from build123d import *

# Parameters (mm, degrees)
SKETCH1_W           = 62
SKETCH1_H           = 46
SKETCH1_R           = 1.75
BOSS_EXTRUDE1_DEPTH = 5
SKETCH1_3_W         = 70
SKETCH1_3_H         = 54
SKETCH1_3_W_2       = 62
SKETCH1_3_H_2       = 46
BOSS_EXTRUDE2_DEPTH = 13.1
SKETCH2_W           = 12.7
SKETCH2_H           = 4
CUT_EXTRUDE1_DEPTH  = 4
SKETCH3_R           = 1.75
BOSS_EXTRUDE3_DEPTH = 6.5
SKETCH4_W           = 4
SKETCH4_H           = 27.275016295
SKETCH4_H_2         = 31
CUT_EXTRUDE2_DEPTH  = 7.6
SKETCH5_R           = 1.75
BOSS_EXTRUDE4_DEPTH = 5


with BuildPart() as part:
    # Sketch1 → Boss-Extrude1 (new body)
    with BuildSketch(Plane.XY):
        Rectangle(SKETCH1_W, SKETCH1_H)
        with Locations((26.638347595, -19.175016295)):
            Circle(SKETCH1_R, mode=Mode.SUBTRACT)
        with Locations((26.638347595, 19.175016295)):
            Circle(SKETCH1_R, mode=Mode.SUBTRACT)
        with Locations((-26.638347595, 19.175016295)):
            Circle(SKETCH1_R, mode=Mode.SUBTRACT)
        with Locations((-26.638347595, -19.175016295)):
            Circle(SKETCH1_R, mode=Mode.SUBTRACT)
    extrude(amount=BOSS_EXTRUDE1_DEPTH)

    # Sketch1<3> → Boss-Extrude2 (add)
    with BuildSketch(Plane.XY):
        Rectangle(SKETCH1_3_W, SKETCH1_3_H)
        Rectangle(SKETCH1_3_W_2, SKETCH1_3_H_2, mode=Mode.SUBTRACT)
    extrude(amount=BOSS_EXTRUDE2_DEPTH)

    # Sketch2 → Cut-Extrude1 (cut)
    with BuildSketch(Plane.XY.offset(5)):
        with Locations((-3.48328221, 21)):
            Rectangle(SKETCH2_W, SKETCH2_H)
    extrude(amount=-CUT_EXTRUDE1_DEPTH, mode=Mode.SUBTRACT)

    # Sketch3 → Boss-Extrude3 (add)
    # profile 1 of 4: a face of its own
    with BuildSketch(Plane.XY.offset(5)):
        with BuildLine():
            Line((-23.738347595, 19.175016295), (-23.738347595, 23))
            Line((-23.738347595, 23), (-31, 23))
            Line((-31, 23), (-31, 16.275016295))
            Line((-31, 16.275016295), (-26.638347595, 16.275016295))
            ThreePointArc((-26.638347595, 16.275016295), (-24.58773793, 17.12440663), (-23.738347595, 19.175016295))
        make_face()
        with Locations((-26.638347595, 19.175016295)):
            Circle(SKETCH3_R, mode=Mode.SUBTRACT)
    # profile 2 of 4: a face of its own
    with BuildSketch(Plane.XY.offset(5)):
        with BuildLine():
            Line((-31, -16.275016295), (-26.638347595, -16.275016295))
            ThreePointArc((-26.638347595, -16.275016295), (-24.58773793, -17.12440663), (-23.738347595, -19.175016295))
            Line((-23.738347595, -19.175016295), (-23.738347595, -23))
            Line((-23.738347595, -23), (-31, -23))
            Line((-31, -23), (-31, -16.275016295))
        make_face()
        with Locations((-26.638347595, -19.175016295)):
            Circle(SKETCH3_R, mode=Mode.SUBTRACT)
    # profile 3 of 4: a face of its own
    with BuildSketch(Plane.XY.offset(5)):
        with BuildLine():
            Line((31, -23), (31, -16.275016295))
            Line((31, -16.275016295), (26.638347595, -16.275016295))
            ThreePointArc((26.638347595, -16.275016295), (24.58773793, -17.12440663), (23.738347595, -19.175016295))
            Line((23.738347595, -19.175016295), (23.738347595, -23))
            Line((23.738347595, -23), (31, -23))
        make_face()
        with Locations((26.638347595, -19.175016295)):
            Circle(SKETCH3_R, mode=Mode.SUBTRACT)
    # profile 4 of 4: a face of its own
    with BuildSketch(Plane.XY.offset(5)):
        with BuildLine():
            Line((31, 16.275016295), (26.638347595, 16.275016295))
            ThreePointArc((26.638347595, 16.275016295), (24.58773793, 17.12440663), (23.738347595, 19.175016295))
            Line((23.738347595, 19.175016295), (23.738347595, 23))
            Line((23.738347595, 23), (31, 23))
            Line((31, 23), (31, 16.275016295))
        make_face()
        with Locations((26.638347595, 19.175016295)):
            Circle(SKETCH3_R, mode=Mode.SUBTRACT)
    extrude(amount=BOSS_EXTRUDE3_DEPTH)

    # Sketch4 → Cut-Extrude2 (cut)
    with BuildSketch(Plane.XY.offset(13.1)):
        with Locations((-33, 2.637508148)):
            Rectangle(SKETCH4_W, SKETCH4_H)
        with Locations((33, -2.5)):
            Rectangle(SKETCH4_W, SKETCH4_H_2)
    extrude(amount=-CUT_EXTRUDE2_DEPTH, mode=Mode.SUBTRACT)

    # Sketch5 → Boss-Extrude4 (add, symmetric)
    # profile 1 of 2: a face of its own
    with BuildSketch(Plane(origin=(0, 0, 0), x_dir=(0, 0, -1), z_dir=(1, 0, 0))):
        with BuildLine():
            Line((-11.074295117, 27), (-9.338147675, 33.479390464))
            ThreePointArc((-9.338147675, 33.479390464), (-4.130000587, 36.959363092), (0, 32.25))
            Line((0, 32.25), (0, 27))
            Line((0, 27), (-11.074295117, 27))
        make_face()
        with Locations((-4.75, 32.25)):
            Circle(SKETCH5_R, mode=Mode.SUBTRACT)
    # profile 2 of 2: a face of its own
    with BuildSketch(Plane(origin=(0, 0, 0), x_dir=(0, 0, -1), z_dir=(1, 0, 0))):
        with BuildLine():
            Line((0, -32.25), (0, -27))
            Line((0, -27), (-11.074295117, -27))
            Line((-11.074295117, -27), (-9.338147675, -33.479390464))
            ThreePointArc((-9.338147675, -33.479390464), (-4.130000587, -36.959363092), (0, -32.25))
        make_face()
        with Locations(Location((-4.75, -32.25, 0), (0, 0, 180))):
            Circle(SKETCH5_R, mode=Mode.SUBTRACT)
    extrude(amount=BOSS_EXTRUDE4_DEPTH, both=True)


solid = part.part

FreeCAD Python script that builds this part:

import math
import FreeCAD as App
import Part
import Sketcher

V = App.Vector
Q = App.Units.Quantity


def add_polygon(sketch, points):
    """Adds a closed chain of lines whose ends are joined by coincident constraints."""
    first, n = sketch.GeometryCount, len(points)
    for a, b in zip(points, points[1:] + points[:1]):
        sketch.addGeometry(Part.LineSegment(App.Vector(*a, 0), App.Vector(*b, 0)), False)
    for i in range(n):
        sketch.addConstraint(Sketcher.Constraint("Coincident", first + i, 2, first + (i + 1) % n, 1))

doc = App.newDocument("Part")
body = doc.addObject("PartDesign::Body", "Body")

sketch1 = body.newObject("Sketcher::SketchObject", "Sketch")
sketch1.AttachmentSupport = (doc.getObject("XY_Plane"), [""])
sketch1.MapMode = "FlatFace"
add_polygon(sketch1, [(-31, 23), (-31, -23), (31, -23), (31, 23)])
sketch1.addGeometry(Part.Circle(V(-26.638348, -19.175016, 0), V(0, 0, 1), 1.75), False)
sketch1.addGeometry(Part.Circle(V(26.638348, -19.175016, 0), V(0, 0, 1), 1.75), False)
sketch1.addGeometry(Part.Circle(V(-26.638348, 19.175016, 0), V(0, 0, 1), 1.75), False)
sketch1.addGeometry(Part.Circle(V(26.638348, 19.175016, 0), V(0, 0, 1), 1.75), False)
sketch1.addConstraint(Sketcher.Constraint("Vertical", 0))
sketch1.addConstraint(Sketcher.Constraint("Horizontal", 1))
sketch1.addConstraint(Sketcher.Constraint("Vertical", 2))
sketch1.addConstraint(Sketcher.Constraint("Horizontal", 3))
sketch1.addConstraint(Sketcher.Constraint("Equal", 4, 5))
sketch1.addConstraint(Sketcher.Constraint("Equal", 5, 6))
sketch1.addConstraint(Sketcher.Constraint("Equal", 6, 7))
sketch1.addConstraint(Sketcher.Constraint("Symmetric", 5, 3, 6, 3, -1, 1))
sketch1.addConstraint(Sketcher.Constraint("Symmetric", 4, 3, 7, 3, -1, 1))
sketch1.addConstraint(Sketcher.Constraint("Symmetric", 0, 2, 2, 2, -1, 1))
sketch1.addConstraint(Sketcher.Constraint("Symmetric", 4, 3, 5, 3, -2))
sketch1.addConstraint(Sketcher.Constraint("Diameter", 4, 3.5))
sketch1.addConstraint(Sketcher.Constraint("DistanceX", 1, 1, 1, 2, 62.0))
sketch1.addConstraint(Sketcher.Constraint("DistanceY", 0, 2, 0, 1, 46.0))
sketch1.addConstraint(Sketcher.Constraint("DistanceX", 4, 3, -1, 1, 26.638348))
sketch1.addConstraint(Sketcher.Constraint("DistanceY", 4, 3, -1, 1, 19.175016))
pad1 = body.newObject("PartDesign::Pad", "Pad")
pad1.Profile = sketch1
pad1.Length = 5

sketch2 = body.newObject("Sketcher::SketchObject", "Sketch001")
sketch2.AttachmentSupport = (doc.getObject("XY_Plane"), [""])
sketch2.MapMode = "FlatFace"
add_polygon(sketch2, [(-35, 27), (-35, -27), (35, -27), (35, 27)])
add_polygon(sketch2, [(31, -23), (-31, -23), (-31, 23), (31, 23)])
sketch2.addConstraint(Sketcher.Constraint("Vertical", 0))
sketch2.addConstraint(Sketcher.Constraint("Horizontal", 1))
sketch2.addConstraint(Sketcher.Constraint("Vertical", 2))
sketch2.addConstraint(Sketcher.Constraint("Horizontal", 3))
sketch2.addConstraint(Sketcher.Constraint("Horizontal", 4))
sketch2.addConstraint(Sketcher.Constraint("Vertical", 5))
sketch2.addConstraint(Sketcher.Constraint("Horizontal", 6))
sketch2.addConstraint(Sketcher.Constraint("Vertical", 7))
sketch2.addConstraint(Sketcher.Constraint("Symmetric", 0, 2, 2, 2, -1, 1))
sketch2.addConstraint(Sketcher.Constraint("Symmetric", 4, 2, 6, 2, -1, 1))
sketch2.addConstraint(Sketcher.Constraint("DistanceX", 1, 1, 1, 2, 70.0))
sketch2.addConstraint(Sketcher.Constraint("DistanceX", 4, 2, 4, 1, 62.0))
sketch2.addConstraint(Sketcher.Constraint("DistanceY", 0, 2, 0, 1, 54.0))
sketch2.addConstraint(Sketcher.Constraint("DistanceY", 5, 1, 5, 2, 46.0))
pad2 = body.newObject("PartDesign::Pad", "Pad001")
pad2.Profile = sketch2
pad2.Length = 13.1

sketch3 = body.newObject("Sketcher::SketchObject", "Sketch002")
sketch3.AttachmentSupport = (doc.getObject("XY_Plane"), [""])
sketch3.MapMode = "FlatFace"
sketch3.AttachmentOffset = App.Placement(V(0, 0, 5), App.Rotation())
add_polygon(sketch3, [(-9.833282, 23), (-9.833282, 19), (2.866718, 19), (2.866718, 23)])
sketch3.addConstraint(Sketcher.Constraint("Vertical", 0))
sketch3.addConstraint(Sketcher.Constraint("Horizontal", 1))
sketch3.addConstraint(Sketcher.Constraint("Vertical", 2))
sketch3.addConstraint(Sketcher.Constraint("Horizontal", 3))
sketch3.addConstraint(Sketcher.Constraint("DistanceY", 0, 2, 0, 1, 4.0))
sketch3.addConstraint(Sketcher.Constraint("DistanceX", 1, 1, 1, 2, 12.7))
sketch3.addConstraint(Sketcher.Constraint("DistanceY", -1, 1, 0, 2, 19.0))
sketch3.addConstraint(Sketcher.Constraint("DistanceX", 0, 2, -1, 1, 9.833282))
pocket1 = body.newObject("PartDesign::Pocket", "Pocket")
pocket1.Profile = sketch3
pocket1.Length = 4

sketch4 = body.newObject("Sketcher::SketchObject", "Sketch003")
sketch4.AttachmentSupport = (doc.getObject("XY_Plane"), [""])
sketch4.MapMode = "FlatFace"
sketch4.AttachmentOffset = App.Placement(V(0, 0, 5), App.Rotation())
sketch4.addGeometry(Part.LineSegment(V(-23.738348, 19.175016, 0), V(-23.738348, 23, 0)), False)
sketch4.addGeometry(Part.LineSegment(V(-23.738348, 23, 0), V(-31, 23, 0)), False)
sketch4.addGeometry(Part.LineSegment(V(-31, 23, 0), V(-31, 16.275016, 0)), False)
sketch4.addGeometry(Part.LineSegment(V(-31, 16.275016, 0), V(-26.638348, 16.275016, 0)), False)
sketch4.addGeometry(Part.ArcOfCircle(Part.Circle(V(-26.638348, 19.175016, 0), V(0, 0, 1), 2.9), math.radians(-90), math.radians(0)), False)
sketch4.addGeometry(Part.Circle(V(-26.638348, 19.175016, 0), V(0, 0, 1), 1.75), False)
sketch4.addGeometry(Part.LineSegment(V(-26.638348, -16.275016, 0), V(-31, -16.275016, 0)), False)
sketch4.addGeometry(Part.LineSegment(V(-31, -16.275016, 0), V(-31, -23, 0)), False)
sketch4.addGeometry(Part.LineSegment(V(-31, -23, 0), V(-23.738348, -23, 0)), False)
sketch4.addGeometry(Part.LineSegment(V(-23.738348, -23, 0), V(-23.738348, -19.175016, 0)), False)
sketch4.addGeometry(Part.ArcOfCircle(Part.Circle(V(-26.638348, -19.175016, 0), V(0, 0, 1), 2.9), math.radians(0), math.radians(90)), False)
sketch4.addGeometry(Part.Circle(V(-26.638348, -19.175016, 0), V(0, 0, 1), 1.75), False)
sketch4.addGeometry(Part.LineSegment(V(31, -23, 0), V(31, -16.275016, 0)), False)
sketch4.addGeometry(Part.LineSegment(V(31, -16.275016, 0), V(26.638348, -16.275016, 0)), False)
sketch4.addGeometry(Part.ArcOfCircle(Part.Circle(V(26.638348, -19.175016, 0), V(0, 0, 1), 2.9), math.radians(90), math.radians(180)), False)
sketch4.addGeometry(Part.LineSegment(V(23.738348, -19.175016, 0), V(23.738348, -23, 0)), False)
sketch4.addGeometry(Part.LineSegment(V(23.738348, -23, 0), V(31, -23, 0)), False)
sketch4.addGeometry(Part.Circle(V(26.638348, -19.175016, 0), V(0, 0, 1), 1.75), False)
sketch4.addGeometry(Part.LineSegment(V(26.638348, 16.275016, 0), V(31, 16.275016, 0)), False)
sketch4.addGeometry(Part.LineSegment(V(31, 16.275016, 0), V(31, 23, 0)), False)
sketch4.addGeometry(Part.LineSegment(V(31, 23, 0), V(23.738348, 23, 0)), False)
sketch4.addGeometry(Part.LineSegment(V(23.738348, 23, 0), V(23.738348, 19.175016, 0)), False)
sketch4.addGeometry(Part.ArcOfCircle(Part.Circle(V(26.638348, 19.175016, 0), V(0, 0, 1), 2.9), math.radians(-180), math.radians(-90)), False)
sketch4.addGeometry(Part.Circle(V(26.638348, 19.175016, 0), V(0, 0, 1), 1.75), False)
sketch4.addConstraint(Sketcher.Constraint("Coincident", 0, 2, 1, 1))
sketch4.addConstraint(Sketcher.Constraint("Coincident", 1, 2, 2, 1))
sketch4.addConstraint(Sketcher.Constraint("Coincident", 2, 2, 3, 1))
sketch4.addConstraint(Sketcher.Constraint("Tangent", 3, 2, 4, 1))
sketch4.addConstraint(Sketcher.Constraint("Tangent", 4, 2, 0, 1))
sketch4.addConstraint(Sketcher.Constraint("Coincident", 6, 2, 7, 1))
sketch4.addConstraint(Sketcher.Constraint("Coincident", 7, 2, 8, 1))
sketch4.addConstraint(Sketcher.Constraint("Coincident", 8, 2, 9, 1))
sketch4.addConstraint(Sketcher.Constraint("Tangent", 9, 2, 10, 1))
sketch4.addConstraint(Sketcher.Constraint("Tangent", 10, 2, 6, 1))
sketch4.addConstraint(Sketcher.Constraint("Coincident", 12, 2, 13, 1))
sketch4.addConstraint(Sketcher.Constraint("Tangent", 13, 2, 14, 1))
sketch4.addConstraint(Sketcher.Constraint("Tangent", 14, 2, 15, 1))
sketch4.addConstraint(Sketcher.Constraint("Coincident", 15, 2, 16, 1))
sketch4.addConstraint(Sketcher.Constraint("Coincident", 16, 2, 12, 1))
sketch4.addConstraint(Sketcher.Constraint("Coincident", 18, 2, 19, 1))
sketch4.addConstraint(Sketcher.Constraint("Coincident", 19, 2, 20, 1))
sketch4.addConstraint(Sketcher.Constraint("Coincident", 20, 2, 21, 1))
sketch4.addConstraint(Sketcher.Constraint("Tangent", 21, 2, 22, 1))
sketch4.addConstraint(Sketcher.Constraint("Tangent", 22, 2, 18, 1))
sketch4.addConstraint(Sketcher.Constraint("Vertical", 0))
sketch4.addConstraint(Sketcher.Constraint("Horizontal", 1))
sketch4.addConstraint(Sketcher.Constraint("Vertical", 2))
sketch4.addConstraint(Sketcher.Constraint("Horizontal", 3))
sketch4.addConstraint(Sketcher.Constraint("Horizontal", 6))
sketch4.addConstraint(Sketcher.Constraint("Vertical", 7))
sketch4.addConstraint(Sketcher.Constraint("Horizontal", 8))
sketch4.addConstraint(Sketcher.Constraint("Vertical", 9))
sketch4.addConstraint(Sketcher.Constraint("Vertical", 12))
sketch4.addConstraint(Sketcher.Constraint("Horizontal", 13))
sketch4.addConstraint(Sketcher.Constraint("Vertical", 15))
sketch4.addConstraint(Sketcher.Constraint("Horizontal", 16))
sketch4.addConstraint(Sketcher.Constraint("Horizontal", 18))
sketch4.addConstraint(Sketcher.Constraint("Vertical", 19))
sketch4.addConstraint(Sketcher.Constraint("Horizontal", 20))
sketch4.addConstraint(Sketcher.Constraint("Vertical", 21))
sketch4.addConstraint(Sketcher.Constraint("Coincident", 5, 3, 4, 3))
sketch4.addConstraint(Sketcher.Constraint("Coincident", 11, 3, 10, 3))
sketch4.addConstraint(Sketcher.Constraint("Coincident", 17, 3, 14, 3))
sketch4.addConstraint(Sketcher.Constraint("Coincident", 23, 3, 22, 3))
sketch4.addConstraint(Sketcher.Constraint("Equal", 4, 10))
sketch4.addConstraint(Sketcher.Constraint("Equal", 5, 11))
sketch4.addConstraint(Sketcher.Constraint("Equal", 10, 14))
sketch4.addConstraint(Sketcher.Constraint("Equal", 11, 17))
sketch4.addConstraint(Sketcher.Constraint("Equal", 14, 22))
sketch4.addConstraint(Sketcher.Constraint("Equal", 17, 23))
sketch4.addConstraint(Sketcher.Constraint("Symmetric", 4, 3, 14, 3, -1, 1))
sketch4.addConstraint(Sketcher.Constraint("Symmetric", 10, 3, 22, 3, -1, 1))
sketch4.addConstraint(Sketcher.Constraint("Symmetric", 1, 2, 16, 2, -1, 1))
sketch4.addConstraint(Sketcher.Constraint("Symmetric", 7, 2, 19, 2, -1, 1))
sketch4.addConstraint(Sketcher.Constraint("Symmetric", 10, 3, 14, 3, -2))
sketch4.addConstraint(Sketcher.Constraint("Symmetric", 7, 2, 16, 2, -2))
sketch4.addConstraint(Sketcher.Constraint("Diameter", 5, 3.5))
sketch4.addConstraint(Sketcher.Constraint("Radius", 4, 2.9))
sketch4.addConstraint(Sketcher.Constraint("DistanceY", -1, 1, 0, 2, 23.0))
sketch4.addConstraint(Sketcher.Constraint("DistanceX", 1, 2, -1, 1, 31.0))
sketch4.addConstraint(Sketcher.Constraint("DistanceX", 1, 2, 1, 1, 7.261652))
sketch4.addConstraint(Sketcher.Constraint("DistanceY", 0, 1, 0, 2, 3.824984))
pad3 = body.newObject("PartDesign::Pad", "Pad002")
pad3.Profile = sketch4
pad3.Length = 6.5

sketch5 = body.newObject("Sketcher::SketchObject", "Sketch004")
sketch5.AttachmentSupport = (doc.getObject("XY_Plane"), [""])
sketch5.MapMode = "FlatFace"
sketch5.AttachmentOffset = App.Placement(V(0, 0, 13.1), App.Rotation())
add_polygon(sketch5, [(-35, 16.275016), (-35, -11), (-31, -11), (-31, 16.275016)])
add_polygon(sketch5, [(31, 13), (31, -18), (35, -18), (35, 13)])
sketch5.addConstraint(Sketcher.Constraint("Vertical", 0))
sketch5.addConstraint(Sketcher.Constraint("Horizontal", 1))
sketch5.addConstraint(Sketcher.Constraint("Vertical", 2))
sketch5.addConstraint(Sketcher.Constraint("Horizontal", 3))
sketch5.addConstraint(Sketcher.Constraint("Vertical", 4))
sketch5.addConstraint(Sketcher.Constraint("Horizontal", 5))
sketch5.addConstraint(Sketcher.Constraint("Vertical", 6))
sketch5.addConstraint(Sketcher.Constraint("Horizontal", 7))
sketch5.addConstraint(Sketcher.Constraint("Equal", 3, 5))
sketch5.addConstraint(Sketcher.Constraint("DistanceX", 1, 1, 1, 2, 4.0))
sketch5.addConstraint(Sketcher.Constraint("DistanceY", 4, 2, 4, 1, 31.0))
sketch5.addConstraint(Sketcher.Constraint("DistanceX", 0, 2, -1, 1, 35.0))
sketch5.addConstraint(Sketcher.Constraint("DistanceY", 0, 2, -1, 1, 11.0))
sketch5.addConstraint(Sketcher.Constraint("DistanceX", -1, 1, 4, 2, 31.0))
sketch5.addConstraint(Sketcher.Constraint("DistanceY", 4, 2, -1, 1, 18.0))
sketch5.addConstraint(Sketcher.Constraint("DistanceY", 0, 2, 0, 1, 27.275016))
pocket2 = body.newObject("PartDesign::Pocket", "Pocket001")
pocket2.Profile = sketch5
pocket2.Length = 7.6

sketch6 = body.newObject("Sketcher::SketchObject", "Sketch005")
sketch6.AttachmentSupport = (doc.getObject("YZ_Plane"), [""])
sketch6.MapMode = "FlatFace"
sketch6.addGeometry(Part.LineSegment(V(33.47939, 9.338148, 0), V(27, 11.074295, 0)), False)
sketch6.addGeometry(Part.LineSegment(V(27, 11.074295, 0), V(27, 0, 0)), False)
sketch6.addGeometry(Part.LineSegment(V(27, 0, 0), V(32.25, 0, 0)), False)
sketch6.addGeometry(Part.ArcOfCircle(Part.Circle(V(32.25, 4.75, 0), V(0, 0, 1), 4.75), math.radians(-90), math.radians(75)), False)
sketch6.addGeometry(Part.Circle(V(32.25, 4.75, 0), V(0, 0, 1), 1.75), False)
sketch6.addGeometry(Part.LineSegment(V(-32.25, 0, 0), V(-27, 0, 0)), False)
sketch6.addGeometry(Part.LineSegment(V(-27, 0, 0), V(-27, 11.074295, 0)), False)
sketch6.addGeometry(Part.LineSegment(V(-27, 11.074295, 0), V(-33.47939, 9.338148, 0)), False)
sketch6.addGeometry(Part.ArcOfCircle(Part.Circle(V(-32.25, 4.75, 0), V(0, 0, 1), 4.75), math.radians(105), math.radians(270)), False)
sketch6.addGeometry(Part.Circle(V(-32.25, 4.75, 0), V(0, 0, 1), 1.75), False)
sketch6.addConstraint(Sketcher.Constraint("Coincident", 0, 2, 1, 1))
sketch6.addConstraint(Sketcher.Constraint("Coincident", 1, 2, 2, 1))
sketch6.addConstraint(Sketcher.Constraint("Tangent", 2, 2, 3, 1))
sketch6.addConstraint(Sketcher.Constraint("Tangent", 3, 2, 0, 1))
sketch6.addConstraint(Sketcher.Constraint("Coincident", 5, 2, 6, 1))
sketch6.addConstraint(Sketcher.Constraint("Coincident", 6, 2, 7, 1))
sketch6.addConstraint(Sketcher.Constraint("Tangent", 7, 2, 8, 1))
sketch6.addConstraint(Sketcher.Constraint("Tangent", 8, 2, 5, 1))
sketch6.addConstraint(Sketcher.Constraint("Vertical", 1))
sketch6.addConstraint(Sketcher.Constraint("Horizontal", 2))
sketch6.addConstraint(Sketcher.Constraint("Horizontal", 5))
sketch6.addConstraint(Sketcher.Constraint("Vertical", 6))
sketch6.addConstraint(Sketcher.Constraint("Coincident", 4, 3, 3, 3))
sketch6.addConstraint(Sketcher.Constraint("Coincident", 9, 3, 8, 3))
sketch6.addConstraint(Sketcher.Constraint("Equal", 3, 8))
sketch6.addConstraint(Sketcher.Constraint("Equal", 4, 9))
sketch6.addConstraint(Sketcher.Constraint("Symmetric", 1, 2, 5, 2, -1, 1))
sketch6.addConstraint(Sketcher.Constraint("Symmetric", 3, 3, 8, 3, -2))
sketch6.addConstraint(Sketcher.Constraint("Horizontal", 0, 2, 6, 2))
sketch6.addConstraint(Sketcher.Constraint("Diameter", 4, 3.5))
sketch6.addConstraint(Sketcher.Constraint("Angle", 0, Q("165 deg")))
sketch6.addConstraint(Sketcher.Constraint("Radius", 3, 4.75))
sketch6.addConstraint(Sketcher.Constraint("DistanceX", -1, 1, 0, 2, 27.0))
sketch6.addConstraint(Sketcher.Constraint("DistanceX", 2, 1, 2, 2, 5.25))
pad4 = body.newObject("PartDesign::Pad", "Pad003")
pad4.Profile = sketch6
pad4.Length = 10
pad4.Midplane = True

doc.recompute()
